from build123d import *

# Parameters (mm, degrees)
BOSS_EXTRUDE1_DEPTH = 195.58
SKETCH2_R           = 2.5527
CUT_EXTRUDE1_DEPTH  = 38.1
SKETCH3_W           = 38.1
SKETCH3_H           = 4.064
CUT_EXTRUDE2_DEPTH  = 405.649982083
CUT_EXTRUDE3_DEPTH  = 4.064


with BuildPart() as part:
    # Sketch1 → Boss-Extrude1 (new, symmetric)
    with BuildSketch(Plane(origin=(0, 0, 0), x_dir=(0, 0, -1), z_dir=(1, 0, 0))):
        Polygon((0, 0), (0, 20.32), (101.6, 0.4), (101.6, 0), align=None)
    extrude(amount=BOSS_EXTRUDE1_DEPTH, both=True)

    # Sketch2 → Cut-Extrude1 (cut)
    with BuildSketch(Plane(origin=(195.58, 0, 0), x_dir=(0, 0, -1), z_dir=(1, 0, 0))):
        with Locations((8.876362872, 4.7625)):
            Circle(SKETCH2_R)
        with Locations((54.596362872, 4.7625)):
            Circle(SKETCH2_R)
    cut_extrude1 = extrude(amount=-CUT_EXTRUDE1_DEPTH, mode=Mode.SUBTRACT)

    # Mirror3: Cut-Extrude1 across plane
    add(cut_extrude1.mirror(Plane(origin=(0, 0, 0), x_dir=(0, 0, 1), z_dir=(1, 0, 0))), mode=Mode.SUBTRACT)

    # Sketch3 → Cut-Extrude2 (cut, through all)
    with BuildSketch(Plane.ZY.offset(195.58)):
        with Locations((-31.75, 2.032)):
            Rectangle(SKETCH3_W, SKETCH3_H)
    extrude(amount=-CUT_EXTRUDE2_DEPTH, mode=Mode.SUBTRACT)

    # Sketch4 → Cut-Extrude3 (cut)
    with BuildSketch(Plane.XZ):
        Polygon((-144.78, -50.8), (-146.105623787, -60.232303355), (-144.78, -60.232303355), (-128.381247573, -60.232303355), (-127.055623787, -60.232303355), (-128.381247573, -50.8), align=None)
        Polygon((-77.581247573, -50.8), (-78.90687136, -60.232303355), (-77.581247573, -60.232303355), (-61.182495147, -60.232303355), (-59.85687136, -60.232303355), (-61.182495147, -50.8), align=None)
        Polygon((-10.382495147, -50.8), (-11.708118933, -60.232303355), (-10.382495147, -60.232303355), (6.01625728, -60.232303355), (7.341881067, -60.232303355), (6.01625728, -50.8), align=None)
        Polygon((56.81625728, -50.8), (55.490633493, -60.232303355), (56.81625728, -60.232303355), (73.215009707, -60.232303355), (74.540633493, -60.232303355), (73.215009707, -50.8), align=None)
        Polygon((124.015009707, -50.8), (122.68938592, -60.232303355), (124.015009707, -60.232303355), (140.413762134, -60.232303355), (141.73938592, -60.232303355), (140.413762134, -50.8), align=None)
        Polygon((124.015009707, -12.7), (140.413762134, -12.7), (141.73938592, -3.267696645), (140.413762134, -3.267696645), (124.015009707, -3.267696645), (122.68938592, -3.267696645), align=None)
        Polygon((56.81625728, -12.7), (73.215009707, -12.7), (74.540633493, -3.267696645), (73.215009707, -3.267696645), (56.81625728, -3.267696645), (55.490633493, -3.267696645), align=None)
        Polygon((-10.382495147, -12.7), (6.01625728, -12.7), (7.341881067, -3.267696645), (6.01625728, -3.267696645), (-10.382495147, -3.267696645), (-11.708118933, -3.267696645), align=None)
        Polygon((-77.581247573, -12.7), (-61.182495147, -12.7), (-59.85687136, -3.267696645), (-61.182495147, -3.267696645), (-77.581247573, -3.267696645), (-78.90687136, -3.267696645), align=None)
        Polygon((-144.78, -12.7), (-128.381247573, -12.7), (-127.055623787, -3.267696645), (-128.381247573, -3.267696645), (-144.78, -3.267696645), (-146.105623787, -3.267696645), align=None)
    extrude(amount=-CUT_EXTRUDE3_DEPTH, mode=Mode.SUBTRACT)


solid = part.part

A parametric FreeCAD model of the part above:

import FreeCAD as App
import Part
import Sketcher
Q = App.Units.Quantity

doc = App.newDocument("Part")
body = doc.addObject("PartDesign::Body", "Body")

# Sketch on YZ plane
sketch1 = body.newObject("Sketcher::SketchObject", "Sketch")
sketch1.AttachmentSupport = (doc.getObject("YZ_Plane"), [""])
sketch1.MapMode = "FlatFace"
sketch1.addGeometry(Part.LineSegment(App.Vector(20.32, 0, 0), App.Vector(0, 0, 0)), False)
sketch1.addGeometry(Part.LineSegment(App.Vector(0, 0, 0), App.Vector(0, -101.6, 0)), False)
sketch1.addGeometry(Part.LineSegment(App.Vector(0, -101.6, 0), App.Vector(0.4, -101.6, 0)), False)
sketch1.addGeometry(Part.LineSegment(App.Vector(0.4, -101.6, 0), App.Vector(20.32, 0, 0)), False)
sketch1.addConstraint(Sketcher.Constraint("Coincident", 0, 2, 1, 1))
sketch1.addConstraint(Sketcher.Constraint("Coincident", 1, 2, 2, 1))
sketch1.addConstraint(Sketcher.Constraint("Coincident", 2, 2, 3, 1))
sketch1.addConstraint(Sketcher.Constraint("Coincident", 3, 2, 0, 1))
sketch1.addConstraint(Sketcher.Constraint("Horizontal", 0))
sketch1.addConstraint(Sketcher.Constraint("Vertical", 1))
sketch1.addConstraint(Sketcher.Constraint("Horizontal", 2))
sketch1.addConstraint(Sketcher.Constraint("Coincident", 0, 2, -1, 1))
sketch1.addConstraint(Sketcher.Constraint("DistanceY", 1, 2, 1, 1, Q("4 in")))
sketch1.addConstraint(Sketcher.Constraint("DistanceX", 0, 2, 0, 1, Q("0.8 in")))
sketch1.addConstraint(Sketcher.Constraint("DistanceX", 2, 1, 2, 2, 0.4))
pad1 = body.newObject("PartDesign::Pad", "Pad")
pad1.Profile = sketch1
pad1.Length = Q("15.4 in")
pad1.Midplane = True

# Sketch on YZ plane
sketch2 = body.newObject("Sketcher::SketchObject", "Sketch001")
sketch2.AttachmentSupport = (doc.getObject("YZ_Plane"), [""])
sketch2.MapMode = "FlatFace"
sketch2.AttachmentOffset = App.Placement(App.Vector(0, 0, 7.7 * 25.4), App.Rotation())
sketch2.addGeometry(Part.Circle(App.Vector(4.8, -8.9, 0), App.Vector(0, 0, 1), 2.6), False)
sketch2.addGeometry(Part.Circle(App.Vector(4.8, -54.6, 0), App.Vector(0, 0, 1), 2.6), False)
sketch2.addConstraint(Sketcher.Constraint("Equal", 0, 1))
sketch2.addConstraint(Sketcher.Constraint("Vertical", 0, 3, 1, 3))
sketch2.addConstraint(Sketcher.Constraint("Diameter", 0, Q("0.201 in")))
sketch2.addConstraint(Sketcher.Constraint("DistanceY", 1, 3, 0, 3, Q("1.8 in")))
sketch2.addConstraint(Sketcher.Constraint("DistanceX", -1, 1, 0, 3, Q("0.1875 in")))
sketch2.addConstraint(Sketcher.Constraint("DistanceY", 0, 3, -1, 1, 8.876363))
pocket1 = body.newObject("PartDesign::Pocket", "Pocket")
pocket1.Profile = sketch2
pocket1.Length = Q("1.5 in")
doc.recompute()

mirrored = body.newObject("PartDesign::Mirrored", "Mirrored")
mirrored.Originals = [pocket1]
mirrored.MirrorPlane = (doc.getObject("YZ_Plane"), [""])
body.Tip = mirrored

# Sketch on YZ plane
sketch3 = body.newObject("Sketcher::SketchObject", "Sketch002")
sketch3.AttachmentSupport = (doc.getObject("YZ_Plane"), [""])
sketch3.MapMode = "FlatFace"
sketch3.AttachmentOffset = App.Placement(App.Vector(0, 0, -7.7 * 25.4), App.Rotation())
sketch3.addGeometry(Part.LineSegment(App.Vector(4.1, -50.8, 0), App.Vector(0, -50.8, 0)), False)
sketch3.addGeometry(Part.LineSegment(App.Vector(0, -50.8, 0), App.Vector(0, -12.7, 0)), False)
sketch3.addGeometry(Part.LineSegment(App.Vector(0, -12.7, 0), App.Vector(4.1, -12.7, 0)), False)
sketch3.addGeometry(Part.LineSegment(App.Vector(4.1, -12.7, 0), App.Vector(4.1, -50.8, 0)), False)
sketch3.addConstraint(Sketcher.Constraint("Coincident", 0, 2, 1, 1))
sketch3.addConstraint(Sketcher.Constraint("Coincident", 1, 2, 2, 1))
sketch3.addConstraint(Sketcher.Constraint("Coincident", 2, 2, 3, 1))
sketch3.addConstraint(Sketcher.Constraint("Coincident", 3, 2, 0, 1))
sketch3.addConstraint(Sketcher.Constraint("Horizontal", 0))
sketch3.addConstraint(Sketcher.Constraint("Vertical", 1))
sketch3.addConstraint(Sketcher.Constraint("Horizontal", 2))
sketch3.addConstraint(Sketcher.Constraint("Vertical", 3))
sketch3.addConstraint(Sketcher.Constraint("PointOnObject", 0, 2, -2))
sketch3.addConstraint(Sketcher.Constraint("DistanceY", 1, 1, 1, 2, Q("1.5 in")))
sketch3.addConstraint(Sketcher.Constraint("DistanceY", 0, 2, -1, 1, Q("2 in")))
sketch3.addConstraint(Sketcher.Constraint("DistanceX", 0, 2, 0, 1, Q("0.16 in")))
pocket2 = body.newObject("PartDesign::Pocket", "Pocket001")
pocket2.Profile = sketch3
pocket2.Type = "ThroughAll"
pocket2.Reversed = True

# Sketch on XZ plane
sketch4 = body.newObject("Sketcher::SketchObject", "Sketch003")
sketch4.AttachmentSupport = (doc.getObject("XZ_Plane"), [""])
sketch4.MapMode = "FlatFace"
sketch4.addGeometry(Part.LineSegment(App.Vector(-145, -51, 0), App.Vector(-146, -60, 0)), False)
sketch4.addGeometry(Part.LineSegment(App.Vector(-146, -60, 0), App.Vector(-127, -60, 0)), False)
sketch4.addGeometry(Part.LineSegment(App.Vector(-127, -60, 0), App.Vector(-128, -51, 0)), False)
sketch4.addGeometry(Part.LineSegment(App.Vector(-128, -51, 0), App.Vector(-145, -51, 0)), False)
sketch4.addGeometry(Part.LineSegment(App.Vector(-78, -51, 0), App.Vector(-79, -60, 0)), False)
sketch4.addGeometry(Part.LineSegment(App.Vector(-79, -60, 0), App.Vector(-60, -60, 0)), False)
sketch4.addGeometry(Part.LineSegment(App.Vector(-60, -60, 0), App.Vector(-61, -51, 0)), False)
sketch4.addGeometry(Part.LineSegment(App.Vector(-61, -51, 0), App.Vector(-78, -51, 0)), False)
sketch4.addGeometry(Part.LineSegment(App.Vector(-10, -51, 0), App.Vector(-12, -60, 0)), False)
sketch4.addGeometry(Part.LineSegment(App.Vector(-12, -60, 0), App.Vector(7, -60, 0)), False)
sketch4.addGeometry(Part.LineSegment(App.Vector(7, -60, 0), App.Vector(6, -51, 0)), False)
sketch4.addGeometry(Part.LineSegment(App.Vector(6, -51, 0), App.Vector(-10, -51, 0)), False)
sketch4.addGeometry(Part.LineSegment(App.Vector(57, -51, 0), App.Vector(55, -60, 0)), False)
sketch4.addGeometry(Part.LineSegment(App.Vector(55, -60, 0), App.Vector(75, -60, 0)), False)
sketch4.addGeometry(Part.LineSegment(App.Vector(75, -60, 0), App.Vector(73, -51, 0)), False)
sketch4.addGeometry(Part.LineSegment(App.Vector(73, -51, 0), App.Vector(57, -51, 0)), False)
sketch4.addGeometry(Part.LineSegment(App.Vector(124, -51, 0), App.Vector(123, -60, 0)), False)
sketch4.addGeometry(Part.LineSegment(App.Vector(123, -60, 0), App.Vector(142, -60, 0)), False)
sketch4.addGeometry(Part.LineSegment(App.Vector(142, -60, 0), App.Vector(140, -51, 0)), False)
sketch4.addGeometry(Part.LineSegment(App.Vector(140, -51, 0), App.Vector(124, -51, 0)), False)
sketch4.addGeometry(Part.LineSegment(App.Vector(124, -13, 0), App.Vector(140, -13, 0)), False)
sketch4.addGeometry(Part.LineSegment(App.Vector(140, -13, 0), App.Vector(142, -3, 0)), False)
sketch4.addGeometry(Part.LineSegment(App.Vector(142, -3, 0), App.Vector(123, -3, 0)), False)
sketch4.addGeometry(Part.LineSegment(App.Vector(123, -3, 0), App.Vector(124, -13, 0)), False)
sketch4.addGeometry(Part.LineSegment(App.Vector(57, -13, 0), App.Vector(73, -13, 0)), False)
sketch4.addGeometry(Part.LineSegment(App.Vector(73, -13, 0), App.Vector(75, -3, 0)), False)
sketch4.addGeometry(Part.LineSegment(App.Vector(75, -3, 0), App.Vector(55, -3, 0)), False)
sketch4.addGeometry(Part.LineSegment(App.Vector(55, -3, 0), App.Vector(57, -13, 0)), False)
sketch4.addGeometry(Part.LineSegment(App.Vector(-10, -13, 0), App.Vector(6, -13, 0)), False)
sketch4.addGeometry(Part.LineSegment(App.Vector(6, -13, 0), App.Vector(7, -3, 0)), False)
sketch4.addGeometry(Part.LineSegment(App.Vector(7, -3, 0), App.Vector(-12, -3, 0)), False)
sketch4.addGeometry(Part.LineSegment(App.Vector(-12, -3, 0), App.Vector(-10, -13, 0)), False)
sketch4.addGeometry(Part.LineSegment(App.Vector(-78, -13, 0), App.Vector(-61, -13, 0)), False)
sketch4.addGeometry(Part.LineSegment(App.Vector(-61, -13, 0), App.Vector(-60, -3, 0)), False)
sketch4.addGeometry(Part.LineSegment(App.Vector(-60, -3, 0), App.Vector(-79, -3, 0)), False)
sketch4.addGeometry(Part.LineSegment(App.Vector(-79, -3, 0), App.Vector(-78, -13, 0)), False)
sketch4.addGeometry(Part.LineSegment(App.Vector(-145, -13, 0), App.Vector(-128, -13, 0)), False)
sketch4.addGeometry(Part.LineSegment(App.Vector(-128, -13, 0), App.Vector(-127, -3, 0)), False)
sketch4.addGeometry(Part.LineSegment(App.Vector(-127, -3, 0), App.Vector(-146, -3, 0)), False)
sketch4.addGeometry(Part.LineSegment(App.Vector(-146, -3, 0), App.Vector(-145, -13, 0)), False)
sketch4.addConstraint(Sketcher.Constraint("Coincident", 0, 2, 1, 1))
sketch4.addConstraint(Sketcher.Constraint("Coincident", 1, 2, 2, 1))
sketch4.addConstraint(Sketcher.Constraint("Coincident", 2, 2, 3, 1))
sketch4.addConstraint(Sketcher.Constraint("Coincident", 3, 2, 0, 1))
sketch4.addConstraint(Sketcher.Constraint("Coincident", 4, 2, 5, 1))
sketch4.addConstraint(Sketcher.Constraint("Coincident", 5, 2, 6, 1))
sketch4.addConstraint(Sketcher.Constraint("Coincident", 6, 2, 7, 1))
sketch4.addConstraint(Sketcher.Constraint("Coincident", 7, 2, 4, 1))
sketch4.addConstraint(Sketcher.Constraint("Coincident", 8, 2, 9, 1))
sketch4.addConstraint(Sketcher.Constraint("Coincident", 9, 2, 10, 1))
sketch4.addConstraint(Sketcher.Constraint("Coincident", 10, 2, 11, 1))
sketch4.addConstraint(Sketcher.Constraint("Coincident", 11, 2, 8, 1))
sketch4.addConstraint(Sketcher.Constraint("Coincident", 12, 2, 13, 1))
sketch4.addConstraint(Sketcher.Constraint("Coincident", 13, 2, 14, 1))
sketch4.addConstraint(Sketcher.Constraint("Coincident", 14, 2, 15, 1))
sketch4.addConstraint(Sketcher.Constraint("Coincident", 15, 2, 12, 1))
sketch4.addConstraint(Sketcher.Constraint("Coincident", 16, 2, 17, 1))
sketch4.addConstraint(Sketcher.Constraint("Coincident", 17, 2, 18, 1))
sketch4.addConstraint(Sketcher.Constraint("Coincident", 18, 2, 19, 1))
sketch4.addConstraint(Sketcher.Constraint("Coincident", 19, 2, 16, 1))
sketch4.addConstraint(Sketcher.Constraint("Coincident", 20, 2, 21, 1))
sketch4.addConstraint(Sketcher.Constraint("Coincident", 21, 2, 22, 1))
sketch4.addConstraint(Sketcher.Constraint("Coincident", 22, 2, 23, 1))
sketch4.addConstraint(Sketcher.Constraint("Coincident", 23, 2, 20, 1))
sketch4.addConstraint(Sketcher.Constraint("Coincident", 24, 2, 25, 1))
sketch4.addConstraint(Sketcher.Constraint("Coincident", 25, 2, 26, 1))
sketch4.addConstraint(Sketcher.Constraint("Coincident", 26, 2, 27, 1))
sketch4.addConstraint(Sketcher.Constraint("Coincident", 27, 2, 24, 1))
sketch4.addConstraint(Sketcher.Constraint("Coincident", 28, 2, 29, 1))
sketch4.addConstraint(Sketcher.Constraint("Coincident", 29, 2, 30, 1))
sketch4.addConstraint(Sketcher.Constraint("Coincident", 30, 2, 31, 1))
sketch4.addConstraint(Sketcher.Constraint("Coincident", 31, 2, 28, 1))
sketch4.addConstraint(Sketcher.Constraint("Coincident", 32, 2, 33, 1))
sketch4.addConstraint(Sketcher.Constraint("Coincident", 33, 2, 34, 1))
sketch4.addConstraint(Sketcher.Constraint("Coincident", 34, 2, 35, 1))
sketch4.addConstraint(Sketcher.Constraint("Coincident", 35, 2, 32, 1))
sketch4.addConstraint(Sketcher.Constraint("Coincident", 36, 2, 37, 1))
sketch4.addConstraint(Sketcher.Constraint("Coincident", 37, 2, 38, 1))
sketch4.addConstraint(Sketcher.Constraint("Coincident", 38, 2, 39, 1))
sketch4.addConstraint(Sketcher.Constraint("Coincident", 39, 2, 36, 1))
sketch4.addConstraint(Sketcher.Constraint("Horizontal", 1))
sketch4.addConstraint(Sketcher.Constraint("Horizontal", 3))
sketch4.addConstraint(Sketcher.Constraint("Horizontal", 5))
sketch4.addConstraint(Sketcher.Constraint("Horizontal", 7))
sketch4.addConstraint(Sketcher.Constraint("Horizontal", 9))
sketch4.addConstraint(Sketcher.Constraint("Horizontal", 11))
sketch4.addConstraint(Sketcher.Constraint("Horizontal", 13))
sketch4.addConstraint(Sketcher.Constraint("Horizontal", 15))
sketch4.addConstraint(Sketcher.Constraint("Horizontal", 17))
sketch4.addConstraint(Sketcher.Constraint("Horizontal", 19))
sketch4.addConstraint(Sketcher.Constraint("Horizontal", 20))
sketch4.addConstraint(Sketcher.Constraint("Horizontal", 22))
sketch4.addConstraint(Sketcher.Constraint("Horizontal", 24))
sketch4.addConstraint(Sketcher.Constraint("Horizontal", 26))
sketch4.addConstraint(Sketcher.Constraint("Horizontal", 28))
sketch4.addConstraint(Sketcher.Constraint("Horizontal", 30))
sketch4.addConstraint(Sketcher.Constraint("Horizontal", 32))
sketch4.addConstraint(Sketcher.Constraint("Horizontal", 34))
sketch4.addConstraint(Sketcher.Constraint("Horizontal", 36))
sketch4.addConstraint(Sketcher.Constraint("Horizontal", 38))
sketch4.addConstraint(Sketcher.Constraint("Parallel", 0, 4))
sketch4.addConstraint(Sketcher.Constraint("Parallel", 2, 6))
sketch4.addConstraint(Sketcher.Constraint("Parallel", 4, 8))
sketch4.addConstraint(Sketcher.Constraint("Parallel", 6, 10))
sketch4.addConstraint(Sketcher.Constraint("Parallel", 8, 12))
sketch4.addConstraint(Sketcher.Constraint("Parallel", 10, 14))
sketch4.addConstraint(Sketcher.Constraint("Parallel", 12, 16))
sketch4.addConstraint(Sketcher.Constraint("Parallel", 14, 18))
sketch4.addConstraint(Sketcher.Constraint("Parallel", 16, 21))
sketch4.addConstraint(Sketcher.Constraint("Parallel", 18, 23))
sketch4.addConstraint(Sketcher.Constraint("Parallel", 21, 25))
sketch4.addConstraint(Sketcher.Constraint("Parallel", 23, 27))
sketch4.addConstraint(Sketcher.Constraint("Parallel", 25, 29))
sketch4.addConstraint(Sketcher.Constraint("Parallel", 27, 31))
sketch4.addConstraint(Sketcher.Constraint("Parallel", 29, 33))
sketch4.addConstraint(Sketcher.Constraint("Parallel", 31, 35))
sketch4.addConstraint(Sketcher.Constraint("Parallel", 33, 37))
sketch4.addConstraint(Sketcher.Constraint("Parallel", 35, 39))
sketch4.addConstraint(Sketcher.Constraint("Horizontal", 1, 2, 4, 2))
sketch4.addConstraint(Sketcher.Constraint("Horizontal", 3, 2, 6, 2))
sketch4.addConstraint(Sketcher.Constraint("Horizontal", 5, 2, 8, 2))
sketch4.addConstraint(Sketcher.Constraint("Horizontal", 7, 2, 10, 2))
sketch4.addConstraint(Sketcher.Constraint("Horizontal", 9, 2, 12, 2))
sketch4.addConstraint(Sketcher.Constraint("Horizontal", 11, 2, 14, 2))
sketch4.addConstraint(Sketcher.Constraint("Horizontal", 13, 2, 16, 2))
sketch4.addConstraint(Sketcher.Constraint("Horizontal", 15, 2, 18, 2))
sketch4.addConstraint(Sketcher.Constraint("Horizontal", 23, 2, 24, 2))
sketch4.addConstraint(Sketcher.Constraint("Horizontal", 22, 2, 25, 2))
sketch4.addConstraint(Sketcher.Constraint("Horizontal", 27, 2, 28, 2))
sketch4.addConstraint(Sketcher.Constraint("Horizontal", 26, 2, 29, 2))
sketch4.addConstraint(Sketcher.Constraint("Horizontal", 31, 2, 32, 2))
sketch4.addConstraint(Sketcher.Constraint("Horizontal", 30, 2, 33, 2))
sketch4.addConstraint(Sketcher.Constraint("Horizontal", 35, 2, 36, 2))
sketch4.addConstraint(Sketcher.Constraint("Horizontal", 34, 2, 37, 2))
sketch4.addConstraint(Sketcher.Constraint("Vertical", 18, 2, 20, 2))
sketch4.addConstraint(Sketcher.Constraint("Vertical", 17, 2, 21, 2))
sketch4.addConstraint(Sketcher.Constraint("Vertical", 16, 2, 22, 2))
sketch4.addConstraint(Sketcher.Constraint("Vertical", 19, 2, 23, 2))
sketch4.addConstraint(Sketcher.Constraint("Vertical", 14, 2, 24, 2))
sketch4.addConstraint(Sketcher.Constraint("Vertical", 12, 2, 26, 2))
sketch4.addConstraint(Sketcher.Constraint("Vertical", 10, 2, 28, 2))
sketch4.addConstraint(Sketcher.Constraint("Vertical", 8, 2, 30, 2))
sketch4.addConstraint(Sketcher.Constraint("Vertical", 6, 2, 32, 2))
sketch4.addConstraint(Sketcher.Constraint("Vertical", 4, 2, 34, 2))
sketch4.addConstraint(Sketcher.Constraint("Vertical", 2, 2, 36, 2))
sketch4.addConstraint(Sketcher.Constraint("Vertical", 0, 2, 38, 2))
sketch4.addConstraint(Sketcher.Constraint("Equal", 1, 5))
sketch4.addConstraint(Sketcher.Constraint("Equal", 5, 9))
sketch4.addConstraint(Sketcher.Constraint("Equal", 9, 13))
sketch4.addConstraint(Sketcher.Constraint("Equal", 13, 17))
sketch4.addConstraint(Sketcher.Constraint("DistanceY", 2, 2, -1, 1, Q("2 in")))
sketch4.addConstraint(Sketcher.Constraint("Angle", 0, Q("-98 deg")))
sketch4.addConstraint(Sketcher.Constraint("DistanceX", 2, 2, 7, 2, Q("2 in")))
sketch4.addConstraint(Sketcher.Constraint("DistanceX", 6, 2, 11, 2, Q("2 in")))
sketch4.addConstraint(Sketcher.Constraint("DistanceX", 10, 2, 15, 2, Q("2 in")))
sketch4.addConstraint(Sketcher.Constraint("DistanceX", 14, 2, 19, 2, Q("2 in")))
sketch4.addConstraint(Sketcher.Constraint("DistanceX", 1, 1, 1, 2, Q("0.75 in")))
sketch4.addConstraint(Sketcher.Constraint("DistanceX", 3, 2, -1, 1, Q("5.7 in")))
sketch4.addConstraint(Sketcher.Constraint("DistanceY", 20, 2, -1, 1, Q("0.5 in")))
sketch4.addConstraint(Sketcher.Constraint("Distance", 0, Q("0.375 in")))
pocket3 = body.newObject("PartDesign::Pocket", "Pocket002")
pocket3.Profile = sketch4
pocket3.Length = Q("0.16 in")

doc.recompute()
